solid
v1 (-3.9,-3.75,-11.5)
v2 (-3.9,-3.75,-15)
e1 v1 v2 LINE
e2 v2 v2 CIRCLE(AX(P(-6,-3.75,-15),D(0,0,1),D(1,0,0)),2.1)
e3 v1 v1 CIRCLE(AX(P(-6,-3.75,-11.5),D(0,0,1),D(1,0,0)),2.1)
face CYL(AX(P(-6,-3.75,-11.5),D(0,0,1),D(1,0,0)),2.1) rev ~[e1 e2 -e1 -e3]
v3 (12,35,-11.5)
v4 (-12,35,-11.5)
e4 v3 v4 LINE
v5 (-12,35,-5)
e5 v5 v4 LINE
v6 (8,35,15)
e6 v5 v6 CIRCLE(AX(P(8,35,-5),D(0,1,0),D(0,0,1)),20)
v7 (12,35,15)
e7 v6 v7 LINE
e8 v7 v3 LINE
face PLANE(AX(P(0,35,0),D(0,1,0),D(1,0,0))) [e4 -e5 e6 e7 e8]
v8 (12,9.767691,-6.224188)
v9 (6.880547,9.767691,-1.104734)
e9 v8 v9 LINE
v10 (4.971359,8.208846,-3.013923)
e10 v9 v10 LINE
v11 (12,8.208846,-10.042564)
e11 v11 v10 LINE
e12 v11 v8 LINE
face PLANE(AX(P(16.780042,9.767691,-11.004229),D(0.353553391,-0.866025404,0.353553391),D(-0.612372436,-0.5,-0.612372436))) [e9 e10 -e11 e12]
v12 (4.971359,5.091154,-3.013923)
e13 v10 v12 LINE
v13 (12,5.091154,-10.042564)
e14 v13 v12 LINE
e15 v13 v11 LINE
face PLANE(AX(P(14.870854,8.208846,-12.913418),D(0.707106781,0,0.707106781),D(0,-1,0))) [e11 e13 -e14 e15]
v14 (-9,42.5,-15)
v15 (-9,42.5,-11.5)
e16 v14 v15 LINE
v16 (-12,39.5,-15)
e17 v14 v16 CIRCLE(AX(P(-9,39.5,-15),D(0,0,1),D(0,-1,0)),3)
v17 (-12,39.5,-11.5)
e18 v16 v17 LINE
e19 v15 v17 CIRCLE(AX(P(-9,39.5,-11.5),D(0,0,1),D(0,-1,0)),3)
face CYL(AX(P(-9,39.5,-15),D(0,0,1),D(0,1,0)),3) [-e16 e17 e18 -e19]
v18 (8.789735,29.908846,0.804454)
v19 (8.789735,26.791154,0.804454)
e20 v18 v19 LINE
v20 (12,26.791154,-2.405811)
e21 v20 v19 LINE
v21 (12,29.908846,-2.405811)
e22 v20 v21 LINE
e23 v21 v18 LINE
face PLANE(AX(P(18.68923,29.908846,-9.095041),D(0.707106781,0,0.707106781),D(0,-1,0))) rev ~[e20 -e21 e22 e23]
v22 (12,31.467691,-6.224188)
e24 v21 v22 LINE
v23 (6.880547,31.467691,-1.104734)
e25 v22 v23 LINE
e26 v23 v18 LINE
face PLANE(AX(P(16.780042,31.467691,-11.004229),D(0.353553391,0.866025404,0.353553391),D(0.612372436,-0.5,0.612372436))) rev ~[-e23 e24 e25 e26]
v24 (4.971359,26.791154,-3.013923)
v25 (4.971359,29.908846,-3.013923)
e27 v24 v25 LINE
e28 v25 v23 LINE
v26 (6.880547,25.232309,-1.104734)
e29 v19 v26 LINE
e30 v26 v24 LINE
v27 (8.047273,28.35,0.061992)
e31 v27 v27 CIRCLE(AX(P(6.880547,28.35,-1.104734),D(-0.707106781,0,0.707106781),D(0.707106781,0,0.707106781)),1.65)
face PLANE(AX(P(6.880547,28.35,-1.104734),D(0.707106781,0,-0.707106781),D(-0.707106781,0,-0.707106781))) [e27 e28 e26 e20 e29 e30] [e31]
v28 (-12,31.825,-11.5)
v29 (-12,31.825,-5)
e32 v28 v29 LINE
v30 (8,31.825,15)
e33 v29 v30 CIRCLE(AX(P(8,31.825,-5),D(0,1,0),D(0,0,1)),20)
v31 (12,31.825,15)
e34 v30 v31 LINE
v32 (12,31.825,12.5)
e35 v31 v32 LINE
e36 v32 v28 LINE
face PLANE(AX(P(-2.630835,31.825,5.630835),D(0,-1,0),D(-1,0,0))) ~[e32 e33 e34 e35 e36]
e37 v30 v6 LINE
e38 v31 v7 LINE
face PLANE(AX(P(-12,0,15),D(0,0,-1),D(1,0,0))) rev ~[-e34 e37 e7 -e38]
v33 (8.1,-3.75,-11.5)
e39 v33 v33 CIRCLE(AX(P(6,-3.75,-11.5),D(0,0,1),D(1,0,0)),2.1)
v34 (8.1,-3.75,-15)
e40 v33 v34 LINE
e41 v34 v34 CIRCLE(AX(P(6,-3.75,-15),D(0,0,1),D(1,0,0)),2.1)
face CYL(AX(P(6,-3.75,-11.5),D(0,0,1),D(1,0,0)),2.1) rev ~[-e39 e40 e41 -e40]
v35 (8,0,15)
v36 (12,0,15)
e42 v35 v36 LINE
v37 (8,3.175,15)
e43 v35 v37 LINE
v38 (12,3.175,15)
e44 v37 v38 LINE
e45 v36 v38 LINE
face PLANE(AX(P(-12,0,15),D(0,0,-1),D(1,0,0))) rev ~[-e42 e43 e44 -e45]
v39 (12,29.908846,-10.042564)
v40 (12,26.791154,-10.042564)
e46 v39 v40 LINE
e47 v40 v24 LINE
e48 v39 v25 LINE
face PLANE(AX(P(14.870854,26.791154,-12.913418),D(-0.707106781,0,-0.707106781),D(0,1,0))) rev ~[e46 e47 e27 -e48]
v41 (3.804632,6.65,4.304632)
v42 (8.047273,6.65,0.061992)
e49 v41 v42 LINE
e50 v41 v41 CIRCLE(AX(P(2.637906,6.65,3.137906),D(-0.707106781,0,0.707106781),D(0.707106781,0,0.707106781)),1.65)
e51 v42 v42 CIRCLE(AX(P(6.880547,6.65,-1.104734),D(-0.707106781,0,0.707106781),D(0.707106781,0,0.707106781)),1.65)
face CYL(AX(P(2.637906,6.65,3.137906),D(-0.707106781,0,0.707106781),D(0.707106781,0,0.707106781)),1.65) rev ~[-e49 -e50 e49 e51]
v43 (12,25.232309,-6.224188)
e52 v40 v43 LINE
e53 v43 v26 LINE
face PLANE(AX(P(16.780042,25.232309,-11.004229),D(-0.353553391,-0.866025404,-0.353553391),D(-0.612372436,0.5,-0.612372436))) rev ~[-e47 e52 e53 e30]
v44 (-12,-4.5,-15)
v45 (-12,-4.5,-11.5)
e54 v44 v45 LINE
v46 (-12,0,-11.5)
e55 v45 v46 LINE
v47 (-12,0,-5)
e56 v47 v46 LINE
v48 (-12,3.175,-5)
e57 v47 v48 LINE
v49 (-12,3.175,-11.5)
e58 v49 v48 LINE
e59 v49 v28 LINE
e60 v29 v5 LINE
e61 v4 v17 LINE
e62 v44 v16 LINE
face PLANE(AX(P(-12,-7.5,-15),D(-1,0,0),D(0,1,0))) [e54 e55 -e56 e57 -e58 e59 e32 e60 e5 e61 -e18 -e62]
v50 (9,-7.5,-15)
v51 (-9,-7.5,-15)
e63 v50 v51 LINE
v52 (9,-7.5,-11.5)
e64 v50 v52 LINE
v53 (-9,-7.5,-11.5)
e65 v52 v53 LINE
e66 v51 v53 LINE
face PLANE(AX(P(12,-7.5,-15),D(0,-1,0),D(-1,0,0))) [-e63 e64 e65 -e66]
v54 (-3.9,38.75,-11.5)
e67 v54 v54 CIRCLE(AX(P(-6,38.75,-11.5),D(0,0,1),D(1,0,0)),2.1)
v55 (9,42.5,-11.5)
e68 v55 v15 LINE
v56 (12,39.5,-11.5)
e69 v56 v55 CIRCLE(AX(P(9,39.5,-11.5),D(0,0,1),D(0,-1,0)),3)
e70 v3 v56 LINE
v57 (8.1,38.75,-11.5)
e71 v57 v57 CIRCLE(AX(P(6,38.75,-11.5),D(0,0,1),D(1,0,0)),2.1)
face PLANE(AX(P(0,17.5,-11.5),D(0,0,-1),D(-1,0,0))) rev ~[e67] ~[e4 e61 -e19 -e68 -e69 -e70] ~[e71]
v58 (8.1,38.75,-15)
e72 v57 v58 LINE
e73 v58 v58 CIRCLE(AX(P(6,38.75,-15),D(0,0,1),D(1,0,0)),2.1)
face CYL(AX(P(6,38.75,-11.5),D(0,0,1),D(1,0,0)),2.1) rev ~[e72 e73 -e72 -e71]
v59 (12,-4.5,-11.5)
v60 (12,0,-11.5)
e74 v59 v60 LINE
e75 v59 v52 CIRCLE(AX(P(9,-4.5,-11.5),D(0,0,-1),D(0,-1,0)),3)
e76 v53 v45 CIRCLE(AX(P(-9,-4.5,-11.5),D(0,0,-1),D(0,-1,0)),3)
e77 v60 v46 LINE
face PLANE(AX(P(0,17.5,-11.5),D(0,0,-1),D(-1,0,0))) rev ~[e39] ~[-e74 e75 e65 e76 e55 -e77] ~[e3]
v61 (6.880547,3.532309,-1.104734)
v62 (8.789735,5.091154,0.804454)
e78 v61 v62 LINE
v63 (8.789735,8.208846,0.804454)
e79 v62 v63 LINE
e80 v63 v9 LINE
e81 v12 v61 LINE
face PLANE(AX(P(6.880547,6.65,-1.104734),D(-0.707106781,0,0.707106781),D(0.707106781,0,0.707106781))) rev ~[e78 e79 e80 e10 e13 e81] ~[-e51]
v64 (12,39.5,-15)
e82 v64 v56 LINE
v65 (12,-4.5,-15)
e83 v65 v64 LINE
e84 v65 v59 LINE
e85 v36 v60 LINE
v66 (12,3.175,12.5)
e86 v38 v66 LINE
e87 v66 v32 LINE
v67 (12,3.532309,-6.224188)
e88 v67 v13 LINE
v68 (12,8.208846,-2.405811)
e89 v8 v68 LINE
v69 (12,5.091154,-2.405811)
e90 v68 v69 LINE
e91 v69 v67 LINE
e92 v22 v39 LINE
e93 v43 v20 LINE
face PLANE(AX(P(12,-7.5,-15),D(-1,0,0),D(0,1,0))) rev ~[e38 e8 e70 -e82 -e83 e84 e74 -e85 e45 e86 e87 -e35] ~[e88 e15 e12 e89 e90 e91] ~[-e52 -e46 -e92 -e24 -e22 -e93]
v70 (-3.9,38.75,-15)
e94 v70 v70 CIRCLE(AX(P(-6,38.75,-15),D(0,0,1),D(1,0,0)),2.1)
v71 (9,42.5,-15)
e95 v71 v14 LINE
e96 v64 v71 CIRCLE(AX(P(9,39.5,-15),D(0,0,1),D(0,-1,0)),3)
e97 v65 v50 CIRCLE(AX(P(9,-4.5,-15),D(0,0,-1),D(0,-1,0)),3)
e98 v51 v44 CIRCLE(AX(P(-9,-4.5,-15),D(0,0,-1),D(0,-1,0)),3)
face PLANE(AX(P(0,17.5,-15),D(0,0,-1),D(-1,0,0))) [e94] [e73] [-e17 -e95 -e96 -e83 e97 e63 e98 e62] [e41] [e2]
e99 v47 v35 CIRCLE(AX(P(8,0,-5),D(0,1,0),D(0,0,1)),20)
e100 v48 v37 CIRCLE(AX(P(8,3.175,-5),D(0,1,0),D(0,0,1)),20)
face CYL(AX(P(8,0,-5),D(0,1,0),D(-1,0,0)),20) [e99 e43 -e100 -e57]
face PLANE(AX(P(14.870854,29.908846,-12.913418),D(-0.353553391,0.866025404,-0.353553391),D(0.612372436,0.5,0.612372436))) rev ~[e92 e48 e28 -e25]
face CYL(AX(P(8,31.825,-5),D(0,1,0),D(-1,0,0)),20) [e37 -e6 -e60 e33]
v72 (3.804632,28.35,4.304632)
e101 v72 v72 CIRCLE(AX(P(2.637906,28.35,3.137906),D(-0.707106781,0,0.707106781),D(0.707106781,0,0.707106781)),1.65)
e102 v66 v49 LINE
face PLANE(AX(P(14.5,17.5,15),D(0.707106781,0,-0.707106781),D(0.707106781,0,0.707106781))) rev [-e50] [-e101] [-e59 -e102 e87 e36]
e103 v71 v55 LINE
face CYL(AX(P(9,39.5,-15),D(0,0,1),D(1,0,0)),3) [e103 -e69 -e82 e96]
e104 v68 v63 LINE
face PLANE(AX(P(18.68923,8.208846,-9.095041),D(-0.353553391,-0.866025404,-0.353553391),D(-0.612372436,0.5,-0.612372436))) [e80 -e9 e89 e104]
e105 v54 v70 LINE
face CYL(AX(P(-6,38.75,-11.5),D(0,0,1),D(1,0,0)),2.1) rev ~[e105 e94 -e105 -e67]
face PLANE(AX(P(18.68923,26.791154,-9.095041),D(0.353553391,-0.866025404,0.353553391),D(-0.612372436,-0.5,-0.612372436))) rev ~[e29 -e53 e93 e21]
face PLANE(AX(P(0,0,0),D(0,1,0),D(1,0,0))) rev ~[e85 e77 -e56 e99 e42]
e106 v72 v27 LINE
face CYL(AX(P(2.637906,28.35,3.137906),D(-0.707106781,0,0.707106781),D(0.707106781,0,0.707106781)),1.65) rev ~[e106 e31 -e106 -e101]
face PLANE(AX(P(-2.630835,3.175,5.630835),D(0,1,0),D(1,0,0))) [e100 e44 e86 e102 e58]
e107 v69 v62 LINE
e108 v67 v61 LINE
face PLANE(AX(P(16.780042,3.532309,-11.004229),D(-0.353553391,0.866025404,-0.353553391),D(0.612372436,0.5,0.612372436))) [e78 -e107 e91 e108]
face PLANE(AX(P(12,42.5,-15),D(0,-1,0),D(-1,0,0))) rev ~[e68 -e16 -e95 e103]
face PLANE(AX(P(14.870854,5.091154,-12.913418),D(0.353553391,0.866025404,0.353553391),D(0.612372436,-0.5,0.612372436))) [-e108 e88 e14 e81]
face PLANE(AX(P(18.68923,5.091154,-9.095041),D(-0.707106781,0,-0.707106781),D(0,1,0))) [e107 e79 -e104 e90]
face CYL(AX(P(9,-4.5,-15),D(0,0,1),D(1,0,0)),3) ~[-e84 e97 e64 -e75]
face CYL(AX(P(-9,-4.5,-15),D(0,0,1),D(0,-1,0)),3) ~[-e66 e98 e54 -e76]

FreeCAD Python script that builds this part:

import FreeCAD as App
import Part
import Sketcher
Q = App.Units.Quantity


def edges_at(feature, points):
    """Names of the edges that pass closest to the given points."""
    edges = feature.Shape.Edges
    near = lambda p: min(range(len(edges)), key=lambda i: edges[i].distToShape(Part.Vertex(*p))[0])
    return sorted({f"Edge{near(p) + 1}" for p in points})


def add_polygon(sketch, points):
    """Adds a closed chain of lines whose ends are joined by coincident constraints."""
    first, n = sketch.GeometryCount, len(points)
    for a, b in zip(points, points[1:] + points[:1]):
        sketch.addGeometry(Part.LineSegment(App.Vector(*a, 0), App.Vector(*b, 0)), False)
    for i in range(n):
        sketch.addConstraint(Sketcher.Constraint("Coincident", first + i, 2, first + (i + 1) % n, 1))

doc = App.newDocument("Part")
body = doc.addObject("PartDesign::Body", "Body")

sketch1 = doc.addObject("Sketcher::SketchObject", "Sketch")
body.addObject(sketch1)
sketch1.AttachmentSupport = (doc.XZ_Plane, [""])
sketch1.MapMode = "FlatFace"
add_polygon(sketch1, [(-12, -15), (-12, 15), (12, 15), (12, -15)])
sketch1.addConstraint([
    Sketcher.Constraint("Vertical", 0),
    Sketcher.Constraint("Horizontal", 1),
    Sketcher.Constraint("Vertical", 2),
    Sketcher.Constraint("Horizontal", 3),
    Sketcher.Constraint("Symmetric", 0, 2, 2, 2, -1, 1),
    Sketcher.Constraint("DistanceX", 1, 1, 1, 2, 24.0),
    Sketcher.Constraint("DistanceY", 0, 1, 0, 2, 30.0),
])
pad1 = doc.addObject("PartDesign::Pad", "Pad")
body.addObject(pad1)
pad1.Profile = sketch1
pad1.Length = 35
pad1.Reversed = True

sketch2 = doc.addObject("Sketcher::SketchObject", "Sketch001")
body.addObject(sketch2)
sketch2.AttachmentSupport = (doc.XZ_Plane, [""])
sketch2.MapMode = "FlatFace"
sketch2.AttachmentOffset = App.Placement(App.Vector(0, 0, -17.5), App.Rotation())
add_polygon(sketch2, [(-12, -12), (-12, 15), (14, 15)])
sketch2.addConstraint([
    Sketcher.Constraint("Vertical", 0),
    Sketcher.Constraint("Horizontal", 1),
    Sketcher.Constraint("Equal", 1, 0),
    Sketcher.Constraint("DistanceX", 1, 1, 1, 2, 26.5),
    Sketcher.Constraint("DistanceX", 0, 2, -1, 1, 12.0),
    Sketcher.Constraint("DistanceY", -1, 1, 0, 2, 15.0),
])
pocket1 = doc.addObject("PartDesign::Pocket", "Pocket")
body.addObject(pocket1)
pocket1.Profile = sketch2
pocket1.Length = 14.325
pocket1.Reversed = True
doc.recompute()

datumplane = doc.addObject("PartDesign::Plane", "DatumPlane")
body.addObject(datumplane)
datumplane.AttachmentSupport = (doc.XZ_Plane, [""])
datumplane.MapMode = "FlatFace"
datumplane.AttachmentOffset = App.Placement(App.Vector(0, 0, -17.5), App.Rotation())
mirrored = doc.addObject("PartDesign::Mirrored", "Mirrored")
body.addObject(mirrored)
mirrored.Originals = [pocket1]
mirrored.MirrorPlane = (datumplane, [""])
body.Tip = mirrored
doc.recompute()

fillet = doc.addObject("PartDesign::Fillet", "Fillet")
body.addObject(fillet)
fillet.Base = (mirrored, edges_at(mirrored, [(-12, 1.587, 15), (-12, 33.413, 15)]))
fillet.Radius = 20

sketch3 = doc.addObject("Sketcher::SketchObject", "Sketch002")
body.addObject(sketch3)
sketch3.Placement = App.Placement(App.Vector(-0.25, 0, 0.25), App.Rotation(App.Vector(0.707106781, 0, 0.707106781), App.Vector(0, 0.999999999, 0), App.Vector(-0.707106781, 0, 0.707106781), "ZXY"))
sketch3.addGeometry([
    Part.Circle(App.Vector(4.1, 6.6, 0), App.Vector(0, 0, 1), 1.6),
    Part.Circle(App.Vector(4.1, 28.3, 0), App.Vector(0, 0, 1), 1.6),
], False)
sketch3.addConstraint([
    Sketcher.Constraint("Equal", 0, 1),
    Sketcher.Constraint("Vertical", 0, 3, 1, 3),
    Sketcher.Constraint("Diameter", 0, 3.3),
    Sketcher.Constraint("DistanceY", 0, 3, 1, 3, 21.7),
    Sketcher.Constraint("DistanceY", -1, 1, 0, 3, 6.65),
    Sketcher.Constraint("DistanceX", -1, 1, 0, 3, 4.084116),
])
pocket2 = doc.addObject("PartDesign::Pocket", "Pocket001")
body.addObject(pocket2)
pocket2.Profile = sketch3
pocket2.Type = "ThroughAll"

sketch4 = doc.addObject("Sketcher::SketchObject", "Sketch003")
body.addObject(sketch4)
sketch4.Placement = App.Placement(App.Vector(13.892136, 0, -13.892136), App.Rotation(App.Vector(0.707106781, 0, 0.707106781), App.Vector(0, 0.999999999, 0), App.Vector(-0.707106781, 0, 0.707106781), "ZXY"))
add_polygon(sketch4, [(6.8, 8.2), (4.1, 9.8), (1.4, 8.2), (1.4, 5.1), (4.1, 3.5), (6.8, 5.1)])
add_polygon(sketch4, [(6.8, 26.8), (6.8, 29.9), (4.1, 31.5), (1.4, 29.9), (1.4, 26.8), (4.1, 25.2)])
sketch4.addConstraint([
    Sketcher.Constraint("Vertical", 2),
    Sketcher.Constraint("Vertical", 5),
    Sketcher.Constraint("Vertical", 6),
    Sketcher.Constraint("Vertical", 9),
    Sketcher.Constraint("Parallel", 0, 3),
    Sketcher.Constraint("Parallel", 1, 4),
    Sketcher.Constraint("Parallel", 3, 7),
    Sketcher.Constraint("Parallel", 4, 8),
    Sketcher.Constraint("Parallel", 7, 10),
    Sketcher.Constraint("Parallel", 8, 11),
    Sketcher.Constraint("Horizontal", 2, 2, 4, 2),
    Sketcher.Constraint("Horizontal", 1, 2, 5, 2),
    Sketcher.Constraint("Horizontal", 6, 2, 8, 2),
    Sketcher.Constraint("Horizontal", 9, 2, 11, 2),
    Sketcher.Constraint("Vertical", 0, 2, 3, 2),
    Sketcher.Constraint("Vertical", 5, 2, 6, 2),
    Sketcher.Constraint("Vertical", 3, 2, 7, 2),
    Sketcher.Constraint("Equal", 5, 6),
    Sketcher.Constraint("Angle", 0, Q("150 deg")),
    Sketcher.Constraint("DistanceX", 1, 2, 0, 2, 2.7),
    Sketcher.Constraint("DistanceY", 5, 2, 6, 2, 21.7),
    Sketcher.Constraint("DistanceY", 2, 2, 2, 1, 3.117691),
    Sketcher.Constraint("DistanceY", -1, 1, 0, 2, 9.767691),
    Sketcher.Constraint("DistanceX", -1, 1, 0, 2, 4.084116),
])
pocket3 = doc.addObject("PartDesign::Pocket", "Pocket002")
body.addObject(pocket3)
pocket3.Profile = sketch4
pocket3.Length = 14
pocket3.Reversed = True

sketch5 = doc.addObject("Sketcher::SketchObject", "Sketch004")
body.addObject(sketch5)
sketch5.AttachmentSupport = (doc.XY_Plane, [""])
sketch5.MapMode = "FlatFace"
sketch5.AttachmentOffset = App.Placement(App.Vector(0, 0, -15), App.Rotation())
add_polygon(sketch5, [(12, 42), (12, -8), (-12, -8), (-12, 42)])
sketch5.addConstraint([
    Sketcher.Constraint("Vertical", 0),
    Sketcher.Constraint("Horizontal", 1),
    Sketcher.Constraint("Vertical", 2),
    Sketcher.Constraint("Horizontal", 3),
    Sketcher.Constraint("DistanceX", 1, 2, 1, 1, 24.0),
    Sketcher.Constraint("DistanceY", 0, 2, 0, 1, 50.0),
    Sketcher.Constraint("DistanceX", -1, 1, 0, 2, 12.0),
    Sketcher.Constraint("DistanceY", 0, 2, -1, 1, 7.5),
])
pad2 = doc.addObject("PartDesign::Pad", "Pad001")
body.addObject(pad2)
pad2.Profile = sketch5
pad2.Length = 3.5

sketch6 = doc.addObject("Sketcher::SketchObject", "Sketch005")
body.addObject(sketch6)
sketch6.AttachmentSupport = (doc.XY_Plane, [""])
sketch6.MapMode = "FlatFace"
sketch6.AttachmentOffset = App.Placement(App.Vector(0, 0, -11.5), App.Rotation())
sketch6.addGeometry([
    Part.Circle(App.Vector(6, 38.8, 0), App.Vector(0, 0, 1), 2.1),
    Part.Circle(App.Vector(-6, 38.8, 0), App.Vector(0, 0, 1), 2.1),
    Part.Circle(App.Vector(-6, -3.8, 0), App.Vector(0, 0, 1), 2.1),
    Part.Circle(App.Vector(6, -3.8, 0), App.Vector(0, 0, 1), 2.1),
], False)
sketch6.addConstraint([
    Sketcher.Constraint("Equal", 0, 1),
    Sketcher.Constraint("Equal", 1, 2),
    Sketcher.Constraint("Equal", 2, 3),
    Sketcher.Constraint("Symmetric", 0, 3, 1, 3, -2),
    Sketcher.Constraint("Symmetric", 2, 3, 3, 3, -2),
    Sketcher.Constraint("Vertical", 1, 3, 2, 3),
    Sketcher.Constraint("Diameter", 0, 4.2),
    Sketcher.Constraint("DistanceX", -1, 1, 0, 3, 6.0),
    Sketcher.Constraint("DistanceY", 2, 3, 1, 3, 42.5),
    Sketcher.Constraint("DistanceY", -1, 1, 0, 3, 38.75),
])
pocket4 = doc.addObject("PartDesign::Pocket", "Pocket003")
body.addObject(pocket4)
pocket4.Profile = sketch6
pocket4.Length = 3.5
doc.recompute()

fillet2 = doc.addObject("PartDesign::Fillet", "Fillet001")
body.addObject(fillet2)
fillet2.Base = (pocket4, edges_at(pocket4, [
    (12, -7.5, -13.25),
    (-12, 42.5, -13.25),
    (-12, -7.5, -13.25),
    (12, 42.5, -13.25),
]))
fillet2.Radius = 3

doc.recompute()
